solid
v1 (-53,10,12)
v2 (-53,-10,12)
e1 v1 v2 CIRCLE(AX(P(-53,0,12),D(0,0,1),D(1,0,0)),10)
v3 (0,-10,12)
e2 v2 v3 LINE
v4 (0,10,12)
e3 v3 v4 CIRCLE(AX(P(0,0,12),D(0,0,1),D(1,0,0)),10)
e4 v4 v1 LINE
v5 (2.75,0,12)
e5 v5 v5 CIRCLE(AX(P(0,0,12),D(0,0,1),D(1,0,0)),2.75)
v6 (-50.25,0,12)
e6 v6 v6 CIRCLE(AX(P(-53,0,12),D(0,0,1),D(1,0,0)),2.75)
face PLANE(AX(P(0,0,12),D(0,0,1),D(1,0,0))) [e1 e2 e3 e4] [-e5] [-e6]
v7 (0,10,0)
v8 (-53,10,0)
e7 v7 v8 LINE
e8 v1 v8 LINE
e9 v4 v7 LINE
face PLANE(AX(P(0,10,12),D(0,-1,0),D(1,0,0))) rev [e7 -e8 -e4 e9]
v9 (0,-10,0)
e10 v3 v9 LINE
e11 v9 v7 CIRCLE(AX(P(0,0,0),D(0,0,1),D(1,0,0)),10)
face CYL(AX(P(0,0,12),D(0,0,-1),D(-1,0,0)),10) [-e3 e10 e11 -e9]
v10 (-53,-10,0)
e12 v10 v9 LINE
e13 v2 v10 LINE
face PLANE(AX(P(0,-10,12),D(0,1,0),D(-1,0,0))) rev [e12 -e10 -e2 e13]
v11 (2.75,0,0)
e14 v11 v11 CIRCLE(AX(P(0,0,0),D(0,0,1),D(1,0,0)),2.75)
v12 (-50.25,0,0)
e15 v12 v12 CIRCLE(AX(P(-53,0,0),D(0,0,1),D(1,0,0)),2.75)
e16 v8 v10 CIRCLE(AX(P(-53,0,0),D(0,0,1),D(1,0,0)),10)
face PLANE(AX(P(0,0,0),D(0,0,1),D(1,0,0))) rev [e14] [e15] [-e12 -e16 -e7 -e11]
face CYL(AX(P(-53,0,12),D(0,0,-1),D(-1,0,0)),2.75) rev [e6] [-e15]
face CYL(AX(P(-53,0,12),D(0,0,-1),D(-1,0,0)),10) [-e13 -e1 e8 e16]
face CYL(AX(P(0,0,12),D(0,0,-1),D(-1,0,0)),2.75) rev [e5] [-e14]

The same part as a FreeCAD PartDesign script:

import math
import FreeCAD as App
import Part
import Sketcher

doc = App.newDocument("Part")
body = doc.addObject("PartDesign::Body", "Body")

sketch1 = body.newObject("Sketcher::SketchObject", "Sketch")
sketch1.AttachmentSupport = (doc.getObject("XY_Plane"), [""])
sketch1.MapMode = "FlatFace"
sketch1.addGeometry(Part.LineSegment(App.Vector(-53, -10, 0), App.Vector(0, -10, 0)), False)
sketch1.addGeometry(Part.ArcOfCircle(Part.Circle(App.Vector(0, 0, 0), App.Vector(0, 0, 1), 10), math.radians(-90), math.radians(90)), False)
sketch1.addGeometry(Part.LineSegment(App.Vector(0, 10, 0), App.Vector(-53, 10, 0)), False)
sketch1.addGeometry(Part.ArcOfCircle(Part.Circle(App.Vector(-53, 0, 0), App.Vector(0, 0, 1), 10), math.radians(90), math.radians(270)), False)
sketch1.addGeometry(Part.Circle(App.Vector(0, 0, 0), App.Vector(0, 0, 1), 2.8), False)
sketch1.addGeometry(Part.Circle(App.Vector(-53, 0, 0), App.Vector(0, 0, 1), 2.8), False)
sketch1.addConstraint(Sketcher.Constraint("Tangent", 0, 2, 1, 1))
sketch1.addConstraint(Sketcher.Constraint("Tangent", 1, 2, 2, 1))
sketch1.addConstraint(Sketcher.Constraint("Tangent", 2, 2, 3, 1))
sketch1.addConstraint(Sketcher.Constraint("Tangent", 3, 2, 0, 1))
sketch1.addConstraint(Sketcher.Constraint("Horizontal", 0))
sketch1.addConstraint(Sketcher.Constraint("Horizontal", 2))
sketch1.addConstraint(Sketcher.Constraint("Coincident", 1, 3, -1, 1))
sketch1.addConstraint(Sketcher.Constraint("Coincident", 4, 3, -1, 1))
sketch1.addConstraint(Sketcher.Constraint("Coincident", 5, 3, 3, 3))
sketch1.addConstraint(Sketcher.Constraint("Equal", 4, 5))
sketch1.addConstraint(Sketcher.Constraint("Radius", 1, 10.0))
sketch1.addConstraint(Sketcher.Constraint("Diameter", 4, 5.5))
sketch1.addConstraint(Sketcher.Constraint("DistanceX", 0, 1, 0, 2, 53.0))
pad1 = body.newObject("PartDesign::Pad", "Pad")
pad1.Profile = sketch1
pad1.Length = 12

doc.recompute()
